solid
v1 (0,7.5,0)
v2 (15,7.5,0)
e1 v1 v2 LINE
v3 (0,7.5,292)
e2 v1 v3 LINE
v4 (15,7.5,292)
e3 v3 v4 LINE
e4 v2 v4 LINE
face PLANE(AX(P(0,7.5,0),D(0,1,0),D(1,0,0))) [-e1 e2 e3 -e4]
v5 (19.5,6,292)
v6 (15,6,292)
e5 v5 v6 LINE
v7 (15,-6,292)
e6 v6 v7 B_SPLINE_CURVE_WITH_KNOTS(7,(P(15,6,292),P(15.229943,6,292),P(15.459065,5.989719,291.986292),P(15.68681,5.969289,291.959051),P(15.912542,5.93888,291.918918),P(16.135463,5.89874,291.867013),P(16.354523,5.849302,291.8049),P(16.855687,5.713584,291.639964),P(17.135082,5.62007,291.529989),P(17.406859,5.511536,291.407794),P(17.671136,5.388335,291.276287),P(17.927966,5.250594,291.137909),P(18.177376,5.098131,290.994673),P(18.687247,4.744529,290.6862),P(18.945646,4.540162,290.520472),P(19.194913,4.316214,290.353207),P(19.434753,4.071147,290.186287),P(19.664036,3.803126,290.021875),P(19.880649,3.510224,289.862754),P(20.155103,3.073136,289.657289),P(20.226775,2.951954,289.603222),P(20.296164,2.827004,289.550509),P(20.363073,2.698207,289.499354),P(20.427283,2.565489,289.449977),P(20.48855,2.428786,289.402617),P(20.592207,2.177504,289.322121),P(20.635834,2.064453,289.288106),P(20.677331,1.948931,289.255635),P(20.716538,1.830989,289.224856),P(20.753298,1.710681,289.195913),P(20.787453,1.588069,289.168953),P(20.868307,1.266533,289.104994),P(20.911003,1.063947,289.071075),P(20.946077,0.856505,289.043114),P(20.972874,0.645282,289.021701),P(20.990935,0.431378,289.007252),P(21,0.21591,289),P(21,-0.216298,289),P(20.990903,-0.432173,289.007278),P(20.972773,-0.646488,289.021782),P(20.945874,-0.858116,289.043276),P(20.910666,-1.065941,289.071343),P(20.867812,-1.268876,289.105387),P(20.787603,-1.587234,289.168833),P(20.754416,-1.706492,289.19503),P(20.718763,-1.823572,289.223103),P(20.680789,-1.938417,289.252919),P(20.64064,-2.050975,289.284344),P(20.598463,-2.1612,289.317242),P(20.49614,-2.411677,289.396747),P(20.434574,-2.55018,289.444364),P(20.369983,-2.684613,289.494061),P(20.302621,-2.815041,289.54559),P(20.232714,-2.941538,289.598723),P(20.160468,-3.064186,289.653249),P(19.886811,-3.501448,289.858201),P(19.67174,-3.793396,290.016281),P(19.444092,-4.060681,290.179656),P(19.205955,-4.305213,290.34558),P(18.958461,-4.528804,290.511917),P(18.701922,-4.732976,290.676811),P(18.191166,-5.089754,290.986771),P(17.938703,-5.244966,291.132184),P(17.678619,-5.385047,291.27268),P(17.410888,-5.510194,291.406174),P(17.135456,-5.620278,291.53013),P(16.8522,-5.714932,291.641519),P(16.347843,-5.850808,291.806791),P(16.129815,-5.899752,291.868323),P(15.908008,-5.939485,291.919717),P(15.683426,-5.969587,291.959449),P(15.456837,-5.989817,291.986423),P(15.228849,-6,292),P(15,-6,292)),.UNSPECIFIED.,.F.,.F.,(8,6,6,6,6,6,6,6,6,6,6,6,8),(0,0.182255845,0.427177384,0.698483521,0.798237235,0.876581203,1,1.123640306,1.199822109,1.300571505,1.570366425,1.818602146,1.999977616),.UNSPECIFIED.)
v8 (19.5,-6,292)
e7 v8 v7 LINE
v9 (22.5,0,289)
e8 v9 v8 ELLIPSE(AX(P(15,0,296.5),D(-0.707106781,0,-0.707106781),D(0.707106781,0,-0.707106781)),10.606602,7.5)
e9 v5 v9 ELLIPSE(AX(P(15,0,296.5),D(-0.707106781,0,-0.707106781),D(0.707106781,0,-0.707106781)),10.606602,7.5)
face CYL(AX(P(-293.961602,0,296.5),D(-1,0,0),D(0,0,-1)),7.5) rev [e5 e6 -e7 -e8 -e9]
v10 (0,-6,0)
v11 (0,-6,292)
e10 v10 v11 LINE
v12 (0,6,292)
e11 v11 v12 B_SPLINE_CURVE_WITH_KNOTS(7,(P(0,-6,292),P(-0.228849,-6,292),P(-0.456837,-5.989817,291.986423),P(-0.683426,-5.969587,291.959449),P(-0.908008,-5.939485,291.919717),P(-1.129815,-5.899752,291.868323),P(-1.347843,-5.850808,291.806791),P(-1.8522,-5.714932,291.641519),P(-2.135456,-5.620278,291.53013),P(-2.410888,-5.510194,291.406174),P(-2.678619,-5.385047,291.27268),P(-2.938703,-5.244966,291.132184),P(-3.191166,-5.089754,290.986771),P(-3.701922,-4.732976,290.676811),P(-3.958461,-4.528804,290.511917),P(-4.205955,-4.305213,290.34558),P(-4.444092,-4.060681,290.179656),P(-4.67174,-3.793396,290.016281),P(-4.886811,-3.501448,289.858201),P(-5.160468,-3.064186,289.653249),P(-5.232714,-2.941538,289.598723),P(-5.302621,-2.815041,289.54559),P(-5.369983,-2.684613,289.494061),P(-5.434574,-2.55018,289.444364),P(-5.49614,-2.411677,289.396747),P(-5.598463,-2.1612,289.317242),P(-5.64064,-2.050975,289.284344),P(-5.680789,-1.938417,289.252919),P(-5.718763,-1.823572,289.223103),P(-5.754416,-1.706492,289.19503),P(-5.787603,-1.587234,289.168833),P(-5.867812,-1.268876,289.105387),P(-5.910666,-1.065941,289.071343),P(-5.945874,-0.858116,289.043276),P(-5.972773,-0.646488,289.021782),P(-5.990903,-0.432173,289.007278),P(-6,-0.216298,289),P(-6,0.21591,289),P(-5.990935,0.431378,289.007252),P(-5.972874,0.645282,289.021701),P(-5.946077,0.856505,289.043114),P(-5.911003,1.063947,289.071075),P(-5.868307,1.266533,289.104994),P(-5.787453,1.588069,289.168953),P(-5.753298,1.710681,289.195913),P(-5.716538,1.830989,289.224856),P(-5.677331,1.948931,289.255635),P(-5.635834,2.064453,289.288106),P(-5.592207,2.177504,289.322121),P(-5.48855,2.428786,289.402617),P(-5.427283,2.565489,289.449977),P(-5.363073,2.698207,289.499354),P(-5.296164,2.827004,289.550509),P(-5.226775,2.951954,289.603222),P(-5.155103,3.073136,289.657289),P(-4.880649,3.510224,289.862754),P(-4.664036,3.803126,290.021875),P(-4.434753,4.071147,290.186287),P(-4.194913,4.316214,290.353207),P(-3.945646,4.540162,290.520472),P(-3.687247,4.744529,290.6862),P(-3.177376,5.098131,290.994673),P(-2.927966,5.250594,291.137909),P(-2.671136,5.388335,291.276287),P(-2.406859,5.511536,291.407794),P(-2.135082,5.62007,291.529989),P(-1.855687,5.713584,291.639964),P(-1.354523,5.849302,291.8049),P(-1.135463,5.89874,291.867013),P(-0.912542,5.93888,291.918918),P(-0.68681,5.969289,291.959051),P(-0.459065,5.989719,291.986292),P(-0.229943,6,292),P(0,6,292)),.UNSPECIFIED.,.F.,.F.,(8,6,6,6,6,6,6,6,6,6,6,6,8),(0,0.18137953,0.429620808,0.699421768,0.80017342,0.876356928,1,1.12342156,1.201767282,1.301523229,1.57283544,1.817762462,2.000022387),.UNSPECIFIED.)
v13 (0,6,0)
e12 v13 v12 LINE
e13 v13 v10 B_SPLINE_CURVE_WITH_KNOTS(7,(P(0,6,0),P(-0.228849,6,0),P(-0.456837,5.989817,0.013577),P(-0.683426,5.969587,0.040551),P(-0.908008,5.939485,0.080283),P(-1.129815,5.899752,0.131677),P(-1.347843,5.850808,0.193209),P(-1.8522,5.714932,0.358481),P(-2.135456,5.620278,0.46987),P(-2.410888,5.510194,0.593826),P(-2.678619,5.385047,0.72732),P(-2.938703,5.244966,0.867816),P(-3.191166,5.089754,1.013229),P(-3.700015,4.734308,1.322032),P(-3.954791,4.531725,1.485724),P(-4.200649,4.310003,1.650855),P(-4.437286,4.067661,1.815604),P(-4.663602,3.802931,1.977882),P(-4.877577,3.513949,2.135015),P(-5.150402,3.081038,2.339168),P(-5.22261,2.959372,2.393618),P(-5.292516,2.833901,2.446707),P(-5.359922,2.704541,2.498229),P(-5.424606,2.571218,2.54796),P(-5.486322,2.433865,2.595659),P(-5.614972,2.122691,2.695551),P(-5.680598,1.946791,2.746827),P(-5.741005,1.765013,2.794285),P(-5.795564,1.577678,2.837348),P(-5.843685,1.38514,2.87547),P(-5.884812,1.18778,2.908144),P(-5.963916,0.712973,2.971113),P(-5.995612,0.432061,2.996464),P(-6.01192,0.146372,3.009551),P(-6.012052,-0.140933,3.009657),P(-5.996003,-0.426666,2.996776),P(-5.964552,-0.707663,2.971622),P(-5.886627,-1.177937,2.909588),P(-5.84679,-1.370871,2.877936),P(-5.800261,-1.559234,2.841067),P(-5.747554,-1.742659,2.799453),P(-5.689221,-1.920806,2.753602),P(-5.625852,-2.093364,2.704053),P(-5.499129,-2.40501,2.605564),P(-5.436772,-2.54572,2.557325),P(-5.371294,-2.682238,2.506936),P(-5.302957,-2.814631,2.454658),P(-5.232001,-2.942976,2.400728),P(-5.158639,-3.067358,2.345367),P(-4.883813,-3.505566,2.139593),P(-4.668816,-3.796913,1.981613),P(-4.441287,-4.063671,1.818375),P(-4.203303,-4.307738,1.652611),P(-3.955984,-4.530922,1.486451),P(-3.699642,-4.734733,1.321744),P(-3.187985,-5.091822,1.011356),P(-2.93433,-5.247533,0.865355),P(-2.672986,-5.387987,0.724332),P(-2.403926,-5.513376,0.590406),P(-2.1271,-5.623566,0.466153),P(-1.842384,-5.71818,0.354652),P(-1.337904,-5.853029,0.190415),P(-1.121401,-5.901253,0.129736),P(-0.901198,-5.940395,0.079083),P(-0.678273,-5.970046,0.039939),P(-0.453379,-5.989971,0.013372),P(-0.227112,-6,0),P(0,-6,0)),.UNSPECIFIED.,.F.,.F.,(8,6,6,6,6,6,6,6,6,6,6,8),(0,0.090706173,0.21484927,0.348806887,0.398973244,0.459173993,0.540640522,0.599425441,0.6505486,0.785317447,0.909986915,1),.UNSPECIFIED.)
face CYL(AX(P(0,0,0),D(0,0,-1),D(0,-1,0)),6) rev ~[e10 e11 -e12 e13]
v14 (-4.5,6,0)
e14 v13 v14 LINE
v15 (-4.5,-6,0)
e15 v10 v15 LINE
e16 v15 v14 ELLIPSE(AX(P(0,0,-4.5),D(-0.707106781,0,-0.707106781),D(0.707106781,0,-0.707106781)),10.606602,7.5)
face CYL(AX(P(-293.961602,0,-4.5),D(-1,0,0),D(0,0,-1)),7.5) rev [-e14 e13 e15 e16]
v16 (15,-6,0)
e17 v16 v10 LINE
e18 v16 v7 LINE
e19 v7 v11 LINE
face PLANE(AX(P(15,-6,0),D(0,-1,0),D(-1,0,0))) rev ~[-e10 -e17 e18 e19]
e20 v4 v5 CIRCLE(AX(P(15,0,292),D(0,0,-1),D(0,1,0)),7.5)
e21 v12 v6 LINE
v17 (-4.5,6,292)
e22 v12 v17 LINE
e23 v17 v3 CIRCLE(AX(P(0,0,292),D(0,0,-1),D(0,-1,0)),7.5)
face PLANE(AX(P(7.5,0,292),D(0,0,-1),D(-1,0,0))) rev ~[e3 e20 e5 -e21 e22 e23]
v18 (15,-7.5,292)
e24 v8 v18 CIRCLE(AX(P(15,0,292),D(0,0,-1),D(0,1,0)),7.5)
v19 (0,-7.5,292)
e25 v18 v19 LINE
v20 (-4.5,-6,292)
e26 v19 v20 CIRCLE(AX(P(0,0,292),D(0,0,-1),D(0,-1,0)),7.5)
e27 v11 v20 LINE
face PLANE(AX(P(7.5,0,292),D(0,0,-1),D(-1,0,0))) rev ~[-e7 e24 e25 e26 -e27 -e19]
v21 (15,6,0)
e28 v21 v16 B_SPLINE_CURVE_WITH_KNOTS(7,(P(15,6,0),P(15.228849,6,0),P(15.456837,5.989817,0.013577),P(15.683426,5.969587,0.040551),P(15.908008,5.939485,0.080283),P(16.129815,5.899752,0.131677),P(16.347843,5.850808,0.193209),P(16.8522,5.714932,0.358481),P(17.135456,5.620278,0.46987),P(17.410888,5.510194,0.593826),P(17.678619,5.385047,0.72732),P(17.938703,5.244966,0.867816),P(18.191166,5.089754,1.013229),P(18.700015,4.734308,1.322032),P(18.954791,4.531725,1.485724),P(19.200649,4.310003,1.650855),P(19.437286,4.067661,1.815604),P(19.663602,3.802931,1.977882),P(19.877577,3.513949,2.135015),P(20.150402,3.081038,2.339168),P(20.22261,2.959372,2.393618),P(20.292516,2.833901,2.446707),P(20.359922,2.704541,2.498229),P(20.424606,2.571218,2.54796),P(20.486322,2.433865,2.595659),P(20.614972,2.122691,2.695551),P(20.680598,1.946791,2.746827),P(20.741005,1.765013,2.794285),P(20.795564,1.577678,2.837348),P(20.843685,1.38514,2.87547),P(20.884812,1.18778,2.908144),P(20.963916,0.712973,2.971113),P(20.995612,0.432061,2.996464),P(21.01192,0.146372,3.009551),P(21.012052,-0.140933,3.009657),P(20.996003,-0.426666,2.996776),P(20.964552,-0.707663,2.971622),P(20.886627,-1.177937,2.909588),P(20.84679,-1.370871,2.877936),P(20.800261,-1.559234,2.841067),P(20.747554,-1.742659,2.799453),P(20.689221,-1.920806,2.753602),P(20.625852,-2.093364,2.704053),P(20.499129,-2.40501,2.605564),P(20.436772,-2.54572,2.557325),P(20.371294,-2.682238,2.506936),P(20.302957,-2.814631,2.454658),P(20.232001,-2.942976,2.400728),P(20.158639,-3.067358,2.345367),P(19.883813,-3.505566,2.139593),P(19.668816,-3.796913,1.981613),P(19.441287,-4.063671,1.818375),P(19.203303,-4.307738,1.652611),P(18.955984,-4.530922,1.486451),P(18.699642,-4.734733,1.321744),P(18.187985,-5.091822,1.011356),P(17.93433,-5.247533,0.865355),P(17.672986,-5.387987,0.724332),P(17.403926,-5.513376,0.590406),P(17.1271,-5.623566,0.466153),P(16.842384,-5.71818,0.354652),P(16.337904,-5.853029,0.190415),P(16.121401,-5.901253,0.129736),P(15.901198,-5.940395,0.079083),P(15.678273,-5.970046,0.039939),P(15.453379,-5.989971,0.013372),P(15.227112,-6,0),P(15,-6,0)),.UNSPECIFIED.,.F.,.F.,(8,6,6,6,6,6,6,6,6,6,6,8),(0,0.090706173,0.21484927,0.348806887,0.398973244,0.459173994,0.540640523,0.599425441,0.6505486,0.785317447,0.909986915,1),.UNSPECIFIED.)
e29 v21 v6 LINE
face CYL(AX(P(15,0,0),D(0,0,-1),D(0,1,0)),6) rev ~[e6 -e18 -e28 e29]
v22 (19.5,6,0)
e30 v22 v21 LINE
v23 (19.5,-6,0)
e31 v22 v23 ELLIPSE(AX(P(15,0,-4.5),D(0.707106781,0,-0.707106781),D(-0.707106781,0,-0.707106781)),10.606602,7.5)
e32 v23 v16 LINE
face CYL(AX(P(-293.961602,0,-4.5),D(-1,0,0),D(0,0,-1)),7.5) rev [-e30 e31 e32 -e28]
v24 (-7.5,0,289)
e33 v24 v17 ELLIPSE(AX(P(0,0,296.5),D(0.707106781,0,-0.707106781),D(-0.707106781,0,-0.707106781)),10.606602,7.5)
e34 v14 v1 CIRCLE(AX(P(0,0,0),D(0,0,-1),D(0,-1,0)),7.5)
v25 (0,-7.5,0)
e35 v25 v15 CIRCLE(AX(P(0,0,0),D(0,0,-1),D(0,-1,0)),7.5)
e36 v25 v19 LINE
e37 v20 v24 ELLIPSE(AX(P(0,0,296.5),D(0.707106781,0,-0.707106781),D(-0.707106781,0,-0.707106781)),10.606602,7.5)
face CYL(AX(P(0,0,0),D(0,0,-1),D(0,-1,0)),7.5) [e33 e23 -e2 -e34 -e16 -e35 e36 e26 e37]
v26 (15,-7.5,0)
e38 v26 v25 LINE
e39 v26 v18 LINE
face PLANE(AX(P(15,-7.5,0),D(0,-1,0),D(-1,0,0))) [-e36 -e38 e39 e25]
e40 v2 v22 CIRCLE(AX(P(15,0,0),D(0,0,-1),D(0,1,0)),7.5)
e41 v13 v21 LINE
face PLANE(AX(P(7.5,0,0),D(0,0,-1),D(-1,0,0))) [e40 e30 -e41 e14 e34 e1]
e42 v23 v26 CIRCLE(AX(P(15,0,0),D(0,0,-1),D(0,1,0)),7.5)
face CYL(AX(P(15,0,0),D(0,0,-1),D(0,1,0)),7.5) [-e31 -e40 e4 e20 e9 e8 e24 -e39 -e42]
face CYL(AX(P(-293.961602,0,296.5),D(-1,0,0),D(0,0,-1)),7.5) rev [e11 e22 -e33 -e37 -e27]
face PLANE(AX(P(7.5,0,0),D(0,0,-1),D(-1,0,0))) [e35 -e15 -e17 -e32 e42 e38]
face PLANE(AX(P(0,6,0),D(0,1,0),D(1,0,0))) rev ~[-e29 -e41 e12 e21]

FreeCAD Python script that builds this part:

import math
import FreeCAD as App
import Part
import Sketcher

V = App.Vector

doc = App.newDocument("Part")
params = doc.addObject("Spreadsheet::Sheet", "Params")
for row, (alias, value) in enumerate([
    ("sketch1_radius", "6 mm"),
    ("sketch1_radius2", "7.5 mm"),
    ("sketch1_width", "15 mm"),
    ("pad1_length", "292 mm"),
    ("sketch2_diameter", "15 mm"),
], start=1):
    params.set(f"A{row}", alias)
    params.set(f"B{row}", "=" + value)
    params.setAlias(f"B{row}", alias)

body = doc.addObject("PartDesign::Body", "Body")

sketch1 = doc.addObject("Sketcher::SketchObject", "Sketch")
body.addObject(sketch1)
sketch1.AttachmentSupport = (doc.XY_Plane, [""])
sketch1.MapMode = "FlatFace"
sketch1.addGeometry(Part.LineSegment(V(15, 7.5, 0), V(0, 7.5, 0)), False)
sketch1.addGeometry(Part.ArcOfCircle(Part.Circle(V(0, 0, 0), V(0, 0, 1), 7.5), math.radians(90), math.radians(270)), False)
sketch1.addGeometry(Part.LineSegment(V(0, -7.5, 0), V(15, -7.5, 0)), False)
sketch1.addGeometry(Part.ArcOfCircle(Part.Circle(V(15, 0, 0), V(0, 0, 1), 7.5), math.radians(-90), math.radians(90)), False)
sketch1.addGeometry(Part.LineSegment(V(0, 6, 0), V(15, 6, 0)), False)
sketch1.addGeometry(Part.ArcOfCircle(Part.Circle(V(15, 0, 0), V(0, 0, 1), 6), math.radians(-90), math.radians(90)), False)
sketch1.addGeometry(Part.LineSegment(V(15, -6, 0), V(0, -6, 0)), False)
sketch1.addGeometry(Part.ArcOfCircle(Part.Circle(V(0, 0, 0), V(0, 0, 1), 6), math.radians(90), math.radians(270)), False)
sketch1.addConstraint(Sketcher.Constraint("Tangent", 0, 2, 1, 1))
sketch1.addConstraint(Sketcher.Constraint("Tangent", 1, 2, 2, 1))
sketch1.addConstraint(Sketcher.Constraint("Tangent", 2, 2, 3, 1))
sketch1.addConstraint(Sketcher.Constraint("Tangent", 3, 2, 0, 1))
sketch1.addConstraint(Sketcher.Constraint("Tangent", 4, 2, 5, 2))
sketch1.addConstraint(Sketcher.Constraint("Tangent", 5, 1, 6, 1))
sketch1.addConstraint(Sketcher.Constraint("Tangent", 6, 2, 7, 2))
sketch1.addConstraint(Sketcher.Constraint("Tangent", 7, 1, 4, 1))
sketch1.addConstraint(Sketcher.Constraint("Horizontal", 0))
sketch1.addConstraint(Sketcher.Constraint("Horizontal", 2))
sketch1.addConstraint(Sketcher.Constraint("Horizontal", 4))
sketch1.addConstraint(Sketcher.Constraint("Horizontal", 6))
sketch1.addConstraint(Sketcher.Constraint("Coincident", 1, 3, -1, 1))
sketch1.addConstraint(Sketcher.Constraint("Coincident", 7, 3, -1, 1))
sketch1.addConstraint(Sketcher.Constraint("Vertical", 5, 3, 2, 2))
sketch1.addConstraint(Sketcher.Constraint("Radius", 5, 6.0))
sketch1.addConstraint(Sketcher.Constraint("Radius", 1, 7.5))
sketch1.addConstraint(Sketcher.Constraint("DistanceX", 0, 2, 0, 1, 15.0))
sketch1.setExpression("Constraints[15]", "Params.sketch1_radius")
sketch1.setExpression("Constraints[16]", "Params.sketch1_radius2")
sketch1.setExpression("Constraints[17]", "Params.sketch1_width")
pad1 = doc.addObject("PartDesign::Pad", "Pad")
body.addObject(pad1)
pad1.Profile = sketch1
pad1.setExpression("Length", "Params.pad1_length")

sketch2 = doc.addObject("Sketcher::SketchObject", "Sketch001")
body.addObject(sketch2)
sketch2.AttachmentSupport = (doc.YZ_Plane, [""])
sketch2.MapMode = "FlatFace"
sketch2.addGeometry(Part.Circle(V(0, -4.5, 0), V(0, 0, 1), 7.5), False)
sketch2.addGeometry(Part.Circle(V(0, 296.5, 0), V(0, 0, 1), 7.5), False)
sketch2.addConstraint(Sketcher.Constraint("Equal", 0, 1))
sketch2.addConstraint(Sketcher.Constraint("PointOnObject", 0, 3, -2))
sketch2.addConstraint(Sketcher.Constraint("PointOnObject", 1, 3, -2))
sketch2.addConstraint(Sketcher.Constraint("Diameter", 0, 15.0))
sketch2.addConstraint(Sketcher.Constraint("DistanceY", 0, 3, 1, 3, 301.0))
sketch2.addConstraint(Sketcher.Constraint("DistanceY", 0, 3, -1, 1, 4.5))
sketch2.setExpression("Constraints[3]", "Params.sketch2_diameter")
pocket1 = doc.addObject("PartDesign::Pocket", "Pocket")
body.addObject(pocket1)
pocket1.Profile = sketch2
pocket1.Type = "ThroughAll"
pocket1.Midplane = True

doc.recompute()
